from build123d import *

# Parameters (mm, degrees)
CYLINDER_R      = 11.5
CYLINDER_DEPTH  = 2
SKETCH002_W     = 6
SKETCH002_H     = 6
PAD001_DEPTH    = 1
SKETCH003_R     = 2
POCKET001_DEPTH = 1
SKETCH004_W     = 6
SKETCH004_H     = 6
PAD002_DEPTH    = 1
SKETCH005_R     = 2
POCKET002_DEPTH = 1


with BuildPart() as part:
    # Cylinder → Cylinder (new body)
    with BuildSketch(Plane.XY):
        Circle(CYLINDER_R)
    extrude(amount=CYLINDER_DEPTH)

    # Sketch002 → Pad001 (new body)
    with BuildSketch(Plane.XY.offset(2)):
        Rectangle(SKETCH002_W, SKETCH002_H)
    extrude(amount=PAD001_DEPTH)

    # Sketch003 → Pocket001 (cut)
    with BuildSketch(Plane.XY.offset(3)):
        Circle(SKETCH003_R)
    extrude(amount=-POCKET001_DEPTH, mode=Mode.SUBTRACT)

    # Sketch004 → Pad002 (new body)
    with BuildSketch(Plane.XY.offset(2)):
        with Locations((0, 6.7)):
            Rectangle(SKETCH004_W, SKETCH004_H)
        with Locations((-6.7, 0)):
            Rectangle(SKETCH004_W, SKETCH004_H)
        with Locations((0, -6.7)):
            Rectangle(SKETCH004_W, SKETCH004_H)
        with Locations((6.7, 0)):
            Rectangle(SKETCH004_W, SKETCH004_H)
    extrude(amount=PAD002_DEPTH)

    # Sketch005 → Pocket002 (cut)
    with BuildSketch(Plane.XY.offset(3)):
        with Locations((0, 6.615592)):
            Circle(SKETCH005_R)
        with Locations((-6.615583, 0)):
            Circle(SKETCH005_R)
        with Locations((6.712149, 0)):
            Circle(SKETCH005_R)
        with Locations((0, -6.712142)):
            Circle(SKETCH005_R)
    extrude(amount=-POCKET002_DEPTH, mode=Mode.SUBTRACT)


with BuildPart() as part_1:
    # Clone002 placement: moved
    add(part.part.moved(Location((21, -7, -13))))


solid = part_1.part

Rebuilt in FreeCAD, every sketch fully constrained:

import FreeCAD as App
import Part
import Sketcher
Q = App.Units.Quantity


def add_polygon(sketch, points):
    """Adds a closed chain of lines whose ends are joined by coincident constraints."""
    first, n = sketch.GeometryCount, len(points)
    for a, b in zip(points, points[1:] + points[:1]):
        sketch.addGeometry(Part.LineSegment(App.Vector(*a, 0), App.Vector(*b, 0)), False)
    for i in range(n):
        sketch.addConstraint(Sketcher.Constraint("Coincident", first + i, 2, first + (i + 1) % n, 1))

doc = App.newDocument("Part")
body = doc.addObject("PartDesign::Body", "Body")

# Sketch on XY plane
sketch1 = body.newObject("Sketcher::SketchObject", "Sketch")
sketch1.AttachmentSupport = (doc.getObject("XY_Plane"), [""])
sketch1.MapMode = "FlatFace"
sketch1.addGeometry(Part.Circle(App.Vector(0, 0, 0), App.Vector(0, 0, 1), 12), False)
sketch1.addConstraint([
    Sketcher.Constraint("Coincident", 0, 3, -1, 1),
    Sketcher.Constraint("Diameter", 0, Q("23 mm")),
])
pad1 = body.newObject("PartDesign::Pad", "Pad")
pad1.Profile = sketch1
pad1.Length = 2

# Sketch on XY plane
sketch2 = body.newObject("Sketcher::SketchObject", "Sketch001")
sketch2.AttachmentSupport = (doc.getObject("XY_Plane"), [""])
sketch2.MapMode = "FlatFace"
sketch2.AttachmentOffset = App.Placement(App.Vector(0, 0, 2), App.Rotation())
add_polygon(sketch2, [(-3, 3), (-3, -3), (3, -3), (3, 3)])  # lines 0-3
sketch2.addConstraint([
    Sketcher.Constraint("Vertical", 0),
    Sketcher.Constraint("Horizontal", 1),
    Sketcher.Constraint("Vertical", 2),
    Sketcher.Constraint("Horizontal", 3),
    Sketcher.Constraint("Symmetric", 0, 2, 2, 2, -1, 1),
    Sketcher.Constraint("Equal", 3, 0),
    Sketcher.Constraint("DistanceX", 1, 1, 1, 2, Q("6 mm")),
])
pad2 = body.newObject("PartDesign::Pad", "Pad001")
pad2.Profile = sketch2
pad2.Length = 1

# Sketch on XY plane
sketch3 = body.newObject("Sketcher::SketchObject", "Sketch002")
sketch3.AttachmentSupport = (doc.getObject("XY_Plane"), [""])
sketch3.MapMode = "FlatFace"
sketch3.AttachmentOffset = App.Placement(App.Vector(0, 0, 3), App.Rotation())
sketch3.addGeometry(Part.Circle(App.Vector(0, 0, 0), App.Vector(0, 0, 1), 2), False)
sketch3.addConstraint([
    Sketcher.Constraint("Coincident", 0, 3, -1, 1),
    Sketcher.Constraint("Diameter", 0, Q("4 mm")),
])
pocket1 = body.newObject("PartDesign::Pocket", "Pocket")
pocket1.Profile = sketch3
pocket1.Length = 1

# Sketch on XY plane
sketch4 = body.newObject("Sketcher::SketchObject", "Sketch003")
sketch4.AttachmentSupport = (doc.getObject("XY_Plane"), [""])
sketch4.MapMode = "FlatFace"
sketch4.AttachmentOffset = App.Placement(App.Vector(0, 0, 2), App.Rotation())
add_polygon(sketch4, [(-3, 10), (-3, 4), (3, 4), (3, 10)])  # lines 0-3
add_polygon(sketch4, [(-10, 3), (-10, -3), (-4, -3), (-4, 3)])  # lines 4-7
add_polygon(sketch4, [(-3, -4), (-3, -10), (3, -10), (3, -4)])  # lines 8-11
add_polygon(sketch4, [(4, 3), (4, -3), (10, -3), (10, 3)])  # lines 12-15
sketch4.addConstraint([
    Sketcher.Constraint("Vertical", 0),
    Sketcher.Constraint("Horizontal", 1),
    Sketcher.Constraint("Vertical", 2),
    Sketcher.Constraint("Horizontal", 3),
    Sketcher.Constraint("Vertical", 4),
    Sketcher.Constraint("Horizontal", 5),
    Sketcher.Constraint("Vertical", 6),
    Sketcher.Constraint("Horizontal", 7),
    Sketcher.Constraint("Vertical", 8),
    Sketcher.Constraint("Horizontal", 9),
    Sketcher.Constraint("Vertical", 10),
    Sketcher.Constraint("Horizontal", 11),
    Sketcher.Constraint("Vertical", 12),
    Sketcher.Constraint("Horizontal", 13),
    Sketcher.Constraint("Vertical", 14),
    Sketcher.Constraint("Horizontal", 15),
    Sketcher.Constraint("Symmetric", 2, 2, 8, 2, -1, 1),
    Sketcher.Constraint("Symmetric", 0, 2, 10, 2, -1, 1),
    Sketcher.Constraint("Symmetric", 6, 2, 12, 2, -1, 1),
    Sketcher.Constraint("Symmetric", 4, 2, 14, 2, -1, 1),
    Sketcher.Constraint("Horizontal", 5, 2, 12, 2),
    Sketcher.Constraint("Vertical", 3, 2, 8, 2),
    Sketcher.Constraint("Equal", 3, 5),
    Sketcher.Constraint("Equal", 15, 0),
    Sketcher.Constraint("Equal", 2, 4),
    Sketcher.Constraint("DistanceX", 1, 1, 1, 2, Q("6 mm")),
    Sketcher.Constraint("DistanceY", -1, 1, 0, 2, Q("3.7 mm")),
    Sketcher.Constraint("DistanceX", 4, 2, -1, 1, Q("9.7 mm")),
])
pad3 = body.newObject("PartDesign::Pad", "Pad002")
pad3.Profile = sketch4
pad3.Length = 1

# Sketch on XY plane
sketch5 = body.newObject("Sketcher::SketchObject", "Sketch004")
sketch5.AttachmentSupport = (doc.getObject("XY_Plane"), [""])
sketch5.MapMode = "FlatFace"
sketch5.AttachmentOffset = App.Placement(App.Vector(0, 0, 3), App.Rotation())
sketch5.addGeometry([
    Part.Circle(App.Vector(0, 6.6, 0), App.Vector(0, 0, 1), 2),
    Part.Circle(App.Vector(-6.6, 0, 0), App.Vector(0, 0, 1), 2),
    Part.Circle(App.Vector(6.7, 0, 0), App.Vector(0, 0, 1), 2),
    Part.Circle(App.Vector(0, -6.7, 0), App.Vector(0, 0, 1), 2),
], False)
sketch5.addConstraint([
    Sketcher.Constraint("Equal", 0, 1),
    Sketcher.Constraint("Equal", 1, 2),
    Sketcher.Constraint("Equal", 2, 3),
    Sketcher.Constraint("PointOnObject", 0, 3, -2),
    Sketcher.Constraint("PointOnObject", 1, 3, -1),
    Sketcher.Constraint("PointOnObject", 2, 3, -1),
    Sketcher.Constraint("PointOnObject", 3, 3, -2),
    Sketcher.Constraint("Diameter", 0, Q("4 mm")),
    Sketcher.Constraint("DistanceX", -1, 1, 2, 3, Q("6.712149 mm")),
    Sketcher.Constraint("DistanceY", -1, 1, 0, 3, Q("6.615592 mm")),
    Sketcher.Constraint("DistanceX", 1, 3, -1, 1, Q("6.615583 mm")),
    Sketcher.Constraint("DistanceY", 3, 3, -1, 1, Q("6.712142 mm")),
])
pocket2 = body.newObject("PartDesign::Pocket", "Pocket001")
pocket2.Profile = sketch5
pocket2.Length = 1
body2 = doc.addObject("PartDesign::Body", "Body001")
doc.recompute()

body.Placement = App.Placement(App.Vector(21, -7, -13), App.Rotation(App.Vector(0, 0, 1), 0))
boolean = body2.newObject("PartDesign::Boolean", "Boolean")
boolean.Type = "Fuse"
boolean.addObjects([body])

doc.recompute()
